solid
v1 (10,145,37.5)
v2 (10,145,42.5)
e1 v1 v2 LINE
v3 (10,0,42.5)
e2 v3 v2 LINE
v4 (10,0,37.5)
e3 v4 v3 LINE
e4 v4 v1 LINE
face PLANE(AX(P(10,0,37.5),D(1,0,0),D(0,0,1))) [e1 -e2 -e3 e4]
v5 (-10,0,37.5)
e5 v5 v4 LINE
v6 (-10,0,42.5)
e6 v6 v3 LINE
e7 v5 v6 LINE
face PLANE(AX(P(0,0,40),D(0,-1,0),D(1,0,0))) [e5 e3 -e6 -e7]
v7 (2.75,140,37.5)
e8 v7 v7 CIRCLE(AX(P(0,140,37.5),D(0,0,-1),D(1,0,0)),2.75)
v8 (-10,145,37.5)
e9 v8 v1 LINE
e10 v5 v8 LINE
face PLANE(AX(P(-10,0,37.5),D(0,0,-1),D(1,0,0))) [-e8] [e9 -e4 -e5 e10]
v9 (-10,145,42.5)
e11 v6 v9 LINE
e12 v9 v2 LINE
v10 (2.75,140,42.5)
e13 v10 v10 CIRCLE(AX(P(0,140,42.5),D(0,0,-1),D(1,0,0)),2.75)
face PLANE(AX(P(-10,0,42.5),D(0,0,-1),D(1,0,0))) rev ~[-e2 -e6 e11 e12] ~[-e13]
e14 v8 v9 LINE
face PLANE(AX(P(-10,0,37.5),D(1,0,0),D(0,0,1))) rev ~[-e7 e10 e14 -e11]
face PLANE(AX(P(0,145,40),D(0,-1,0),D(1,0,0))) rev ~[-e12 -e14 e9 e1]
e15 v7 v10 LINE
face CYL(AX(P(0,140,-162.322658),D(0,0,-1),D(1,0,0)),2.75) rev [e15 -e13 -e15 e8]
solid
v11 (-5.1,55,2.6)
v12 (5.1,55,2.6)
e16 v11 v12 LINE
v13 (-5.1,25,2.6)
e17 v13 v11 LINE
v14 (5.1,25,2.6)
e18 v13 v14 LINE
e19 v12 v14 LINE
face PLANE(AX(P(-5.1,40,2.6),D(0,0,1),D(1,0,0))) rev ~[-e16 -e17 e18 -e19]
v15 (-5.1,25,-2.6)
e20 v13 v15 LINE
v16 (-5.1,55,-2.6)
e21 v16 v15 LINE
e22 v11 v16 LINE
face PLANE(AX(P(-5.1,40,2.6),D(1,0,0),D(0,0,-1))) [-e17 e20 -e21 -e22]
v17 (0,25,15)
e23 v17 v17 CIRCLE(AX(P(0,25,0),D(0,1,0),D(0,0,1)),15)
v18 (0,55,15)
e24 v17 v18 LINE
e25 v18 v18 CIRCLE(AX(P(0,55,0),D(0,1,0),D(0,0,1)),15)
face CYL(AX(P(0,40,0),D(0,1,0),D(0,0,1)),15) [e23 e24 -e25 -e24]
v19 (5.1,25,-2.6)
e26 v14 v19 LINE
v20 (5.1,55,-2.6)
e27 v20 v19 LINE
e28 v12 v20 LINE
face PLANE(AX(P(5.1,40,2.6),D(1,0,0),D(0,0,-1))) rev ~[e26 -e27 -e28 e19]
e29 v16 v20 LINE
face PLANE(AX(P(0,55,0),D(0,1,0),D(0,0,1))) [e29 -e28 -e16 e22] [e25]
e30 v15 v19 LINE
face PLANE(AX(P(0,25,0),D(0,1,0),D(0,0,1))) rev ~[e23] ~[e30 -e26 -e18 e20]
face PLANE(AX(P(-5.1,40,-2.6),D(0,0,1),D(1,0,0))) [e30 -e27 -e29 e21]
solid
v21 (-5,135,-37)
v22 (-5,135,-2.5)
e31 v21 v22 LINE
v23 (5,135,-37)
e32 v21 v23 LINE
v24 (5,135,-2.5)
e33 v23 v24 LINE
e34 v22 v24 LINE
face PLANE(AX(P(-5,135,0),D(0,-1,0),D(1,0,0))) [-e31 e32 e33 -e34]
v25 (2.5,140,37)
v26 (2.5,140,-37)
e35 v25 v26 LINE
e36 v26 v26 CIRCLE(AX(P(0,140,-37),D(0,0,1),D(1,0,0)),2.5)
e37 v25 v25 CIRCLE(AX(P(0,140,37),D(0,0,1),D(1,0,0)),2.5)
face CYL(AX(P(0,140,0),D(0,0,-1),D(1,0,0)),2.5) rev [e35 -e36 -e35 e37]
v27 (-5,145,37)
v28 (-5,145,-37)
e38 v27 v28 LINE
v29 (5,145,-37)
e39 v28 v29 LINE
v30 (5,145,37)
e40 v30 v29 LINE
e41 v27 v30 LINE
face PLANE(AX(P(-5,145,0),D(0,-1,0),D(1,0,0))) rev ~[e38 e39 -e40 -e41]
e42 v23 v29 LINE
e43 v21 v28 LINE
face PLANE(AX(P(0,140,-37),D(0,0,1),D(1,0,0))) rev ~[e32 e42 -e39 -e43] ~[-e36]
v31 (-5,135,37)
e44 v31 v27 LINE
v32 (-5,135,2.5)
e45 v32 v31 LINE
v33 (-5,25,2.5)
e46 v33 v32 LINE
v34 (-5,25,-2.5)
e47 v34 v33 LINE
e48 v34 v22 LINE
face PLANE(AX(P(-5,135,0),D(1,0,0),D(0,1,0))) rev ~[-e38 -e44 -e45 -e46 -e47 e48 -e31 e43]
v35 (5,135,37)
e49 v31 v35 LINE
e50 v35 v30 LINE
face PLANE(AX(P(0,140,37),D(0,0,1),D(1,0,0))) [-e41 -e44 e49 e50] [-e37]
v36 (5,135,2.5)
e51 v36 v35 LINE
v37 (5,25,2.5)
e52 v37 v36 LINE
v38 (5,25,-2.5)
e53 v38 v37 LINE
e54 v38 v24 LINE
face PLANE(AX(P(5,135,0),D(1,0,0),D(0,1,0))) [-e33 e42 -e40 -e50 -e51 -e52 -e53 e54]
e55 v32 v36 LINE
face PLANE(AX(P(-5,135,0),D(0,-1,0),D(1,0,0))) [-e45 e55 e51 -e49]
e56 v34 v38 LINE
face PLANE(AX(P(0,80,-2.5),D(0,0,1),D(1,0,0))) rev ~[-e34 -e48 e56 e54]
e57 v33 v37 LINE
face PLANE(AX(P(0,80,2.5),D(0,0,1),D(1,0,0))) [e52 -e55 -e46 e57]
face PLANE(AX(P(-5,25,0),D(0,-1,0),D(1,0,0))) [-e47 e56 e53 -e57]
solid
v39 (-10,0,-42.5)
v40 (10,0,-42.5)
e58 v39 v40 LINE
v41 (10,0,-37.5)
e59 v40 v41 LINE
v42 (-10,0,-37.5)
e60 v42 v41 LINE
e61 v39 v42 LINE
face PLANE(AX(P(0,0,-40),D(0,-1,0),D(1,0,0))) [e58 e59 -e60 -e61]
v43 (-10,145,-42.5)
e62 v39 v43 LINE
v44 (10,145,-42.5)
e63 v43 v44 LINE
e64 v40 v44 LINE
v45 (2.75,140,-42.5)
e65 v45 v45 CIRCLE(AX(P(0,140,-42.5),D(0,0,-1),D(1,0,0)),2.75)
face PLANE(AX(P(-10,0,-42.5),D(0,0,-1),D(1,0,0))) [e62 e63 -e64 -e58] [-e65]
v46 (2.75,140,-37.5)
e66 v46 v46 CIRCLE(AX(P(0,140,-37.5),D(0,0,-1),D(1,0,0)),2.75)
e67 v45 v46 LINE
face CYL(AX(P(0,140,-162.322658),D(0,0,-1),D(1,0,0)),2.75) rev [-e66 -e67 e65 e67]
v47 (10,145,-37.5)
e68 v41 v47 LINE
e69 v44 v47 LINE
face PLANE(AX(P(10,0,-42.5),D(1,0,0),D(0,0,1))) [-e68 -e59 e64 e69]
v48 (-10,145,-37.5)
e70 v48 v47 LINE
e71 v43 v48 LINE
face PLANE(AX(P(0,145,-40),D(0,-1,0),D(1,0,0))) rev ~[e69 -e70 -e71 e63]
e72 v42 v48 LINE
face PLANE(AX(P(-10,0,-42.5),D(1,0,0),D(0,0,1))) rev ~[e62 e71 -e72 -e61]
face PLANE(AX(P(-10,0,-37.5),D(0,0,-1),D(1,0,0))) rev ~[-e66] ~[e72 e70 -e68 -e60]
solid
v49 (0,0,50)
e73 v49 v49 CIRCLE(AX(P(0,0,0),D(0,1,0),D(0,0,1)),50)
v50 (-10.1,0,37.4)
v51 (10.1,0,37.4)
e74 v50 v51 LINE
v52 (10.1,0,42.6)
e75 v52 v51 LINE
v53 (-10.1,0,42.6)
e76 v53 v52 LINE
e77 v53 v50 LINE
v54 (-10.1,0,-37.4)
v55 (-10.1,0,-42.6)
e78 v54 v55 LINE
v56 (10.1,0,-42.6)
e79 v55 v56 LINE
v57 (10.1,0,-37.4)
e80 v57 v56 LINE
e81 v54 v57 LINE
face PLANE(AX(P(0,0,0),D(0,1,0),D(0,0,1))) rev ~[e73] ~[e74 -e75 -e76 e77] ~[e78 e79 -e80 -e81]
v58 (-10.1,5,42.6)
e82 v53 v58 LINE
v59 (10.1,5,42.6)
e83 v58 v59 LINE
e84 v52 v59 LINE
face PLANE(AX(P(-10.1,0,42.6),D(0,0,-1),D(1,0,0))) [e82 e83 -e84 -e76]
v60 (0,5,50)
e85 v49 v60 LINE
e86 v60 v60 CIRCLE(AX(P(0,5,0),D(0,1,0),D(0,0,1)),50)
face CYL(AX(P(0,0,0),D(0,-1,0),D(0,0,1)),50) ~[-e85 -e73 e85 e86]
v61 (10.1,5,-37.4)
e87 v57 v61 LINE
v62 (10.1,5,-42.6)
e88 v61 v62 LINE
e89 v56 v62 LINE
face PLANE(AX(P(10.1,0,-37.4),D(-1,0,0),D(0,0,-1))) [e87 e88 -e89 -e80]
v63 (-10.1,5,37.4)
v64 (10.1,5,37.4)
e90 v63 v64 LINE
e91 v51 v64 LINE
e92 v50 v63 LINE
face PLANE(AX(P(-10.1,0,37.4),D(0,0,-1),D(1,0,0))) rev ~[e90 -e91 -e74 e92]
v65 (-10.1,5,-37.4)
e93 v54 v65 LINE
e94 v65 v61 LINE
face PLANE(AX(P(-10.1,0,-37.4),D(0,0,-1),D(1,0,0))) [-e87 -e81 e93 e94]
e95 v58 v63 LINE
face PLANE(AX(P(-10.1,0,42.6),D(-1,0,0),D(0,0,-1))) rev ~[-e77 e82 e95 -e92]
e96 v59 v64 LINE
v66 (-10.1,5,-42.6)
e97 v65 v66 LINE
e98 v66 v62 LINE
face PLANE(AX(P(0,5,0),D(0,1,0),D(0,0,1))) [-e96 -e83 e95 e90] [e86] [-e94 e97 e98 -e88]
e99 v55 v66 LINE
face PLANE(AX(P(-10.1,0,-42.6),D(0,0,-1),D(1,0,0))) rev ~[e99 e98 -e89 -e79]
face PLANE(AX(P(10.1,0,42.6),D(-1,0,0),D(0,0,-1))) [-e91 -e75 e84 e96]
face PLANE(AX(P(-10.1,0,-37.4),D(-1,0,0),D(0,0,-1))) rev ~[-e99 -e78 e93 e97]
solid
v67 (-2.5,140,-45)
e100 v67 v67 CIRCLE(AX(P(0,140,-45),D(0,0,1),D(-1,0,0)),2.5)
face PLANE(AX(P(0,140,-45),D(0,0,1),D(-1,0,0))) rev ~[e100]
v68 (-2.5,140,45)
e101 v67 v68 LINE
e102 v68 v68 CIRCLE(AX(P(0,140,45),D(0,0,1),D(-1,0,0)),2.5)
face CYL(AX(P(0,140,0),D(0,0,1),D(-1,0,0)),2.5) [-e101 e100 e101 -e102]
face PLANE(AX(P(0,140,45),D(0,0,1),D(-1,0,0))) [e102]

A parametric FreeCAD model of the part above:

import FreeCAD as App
import Part
import Sketcher
from FreeCAD import Vector

doc = App.newDocument("Part")
params = doc.addObject("Spreadsheet::Sheet", "Params")
for row, (alias, value) in enumerate([
    ("sketch1_diameter", "100 mm"),
    ("sketch1_width", "20.2 mm"),
    ("sketch1_height", "5.2 mm"),
    ("pad1_length", "5 mm"),
    ("sketch2_width", "20 mm"),
    ("sketch2_height", "5 mm"),
    ("pad2_length", "145 mm"),
    ("sketch3_width", "20 mm"),
    ("sketch3_height", "5 mm"),
    ("pad3_length", "145 mm"),
    ("sketch4_diameter", "5.5 mm"),
    ("pad4_length", "162.322658 mm"),
    ("pad4_length2", "162.322658 mm"),
    ("sketch5_diameter", "5 mm"),
    ("pad5_length", "90 mm"),
    ("sketch6_diameter", "5 mm"),
    ("sketch6_width", "10 mm"),
    ("pad6_length", "74 mm"),
    ("sketch7_width", "10 mm"),
    ("sketch7_height", "110 mm"),
    ("pad7_length", "5 mm"),
    ("sketch8_diameter", "30 mm"),
    ("sketch8_width", "10.2 mm"),
    ("sketch8_height", "5.2 mm"),
    ("pad8_length", "30 mm"),
], start=1):
    params.set(f"A{row}", alias)
    params.set(f"B{row}", "=" + value)
    params.setAlias(f"B{row}", alias)

body = doc.addObject("PartDesign::Body", "Body")

# Sketch on XZ plane
sketch1 = body.newObject("Sketcher::SketchObject", "Sketch")
sketch1.AttachmentSupport = (doc.getObject("XZ_Plane"), [""])
sketch1.MapMode = "FlatFace"
sketch1.addGeometry(Part.Circle(Vector(0, 0, 0), Vector(0, 0, 1), 50), False)
sketch1.addGeometry(Part.LineSegment(Vector(10, -37, 0), Vector(-10, -37, 0)), False)
sketch1.addGeometry(Part.LineSegment(Vector(-10, -37, 0), Vector(-10, -43, 0)), False)
sketch1.addGeometry(Part.LineSegment(Vector(-10, -43, 0), Vector(10, -43, 0)), False)
sketch1.addGeometry(Part.LineSegment(Vector(10, -43, 0), Vector(10, -37, 0)), False)
sketch1.addGeometry(Part.LineSegment(Vector(10, 43, 0), Vector(-10, 43, 0)), False)
sketch1.addGeometry(Part.LineSegment(Vector(-10, 43, 0), Vector(-10, 37, 0)), False)
sketch1.addGeometry(Part.LineSegment(Vector(-10, 37, 0), Vector(10, 37, 0)), False)
sketch1.addGeometry(Part.LineSegment(Vector(10, 37, 0), Vector(10, 43, 0)), False)
sketch1.addConstraint(Sketcher.Constraint("Coincident", 1, 2, 2, 1))
sketch1.addConstraint(Sketcher.Constraint("Coincident", 2, 2, 3, 1))
sketch1.addConstraint(Sketcher.Constraint("Coincident", 3, 2, 4, 1))
sketch1.addConstraint(Sketcher.Constraint("Coincident", 4, 2, 1, 1))
sketch1.addConstraint(Sketcher.Constraint("Coincident", 5, 2, 6, 1))
sketch1.addConstraint(Sketcher.Constraint("Coincident", 6, 2, 7, 1))
sketch1.addConstraint(Sketcher.Constraint("Coincident", 7, 2, 8, 1))
sketch1.addConstraint(Sketcher.Constraint("Coincident", 8, 2, 5, 1))
sketch1.addConstraint(Sketcher.Constraint("Horizontal", 1))
sketch1.addConstraint(Sketcher.Constraint("Vertical", 2))
sketch1.addConstraint(Sketcher.Constraint("Horizontal", 3))
sketch1.addConstraint(Sketcher.Constraint("Vertical", 4))
sketch1.addConstraint(Sketcher.Constraint("Horizontal", 5))
sketch1.addConstraint(Sketcher.Constraint("Vertical", 6))
sketch1.addConstraint(Sketcher.Constraint("Horizontal", 7))
sketch1.addConstraint(Sketcher.Constraint("Vertical", 8))
sketch1.addConstraint(Sketcher.Constraint("Coincident", 0, 3, -1, 1))
sketch1.addConstraint(Sketcher.Constraint("Symmetric", 3, 2, 5, 2, -1, 1))
sketch1.addConstraint(Sketcher.Constraint("Symmetric", 1, 2, 7, 2, -1, 1))
sketch1.addConstraint(Sketcher.Constraint("Vertical", 2, 2, 5, 2))
sketch1.addConstraint(Sketcher.Constraint("Diameter", 0, 100.0))
sketch1.addConstraint(Sketcher.Constraint("DistanceX", 1, 2, 1, 1, 20.2))
sketch1.addConstraint(Sketcher.Constraint("DistanceY", 2, 2, 2, 1, 5.2))
sketch1.addConstraint(Sketcher.Constraint("DistanceY", 1, 2, 5, 2, 80.0))
sketch1.setExpression("Constraints[20]", "Params.sketch1_diameter")
sketch1.setExpression("Constraints[21]", "Params.sketch1_width")
sketch1.setExpression("Constraints[22]", "Params.sketch1_height")
pad1 = body.newObject("PartDesign::Pad", "Pad")
pad1.Profile = sketch1
pad1.setExpression("Length", "Params.pad1_length")
pad1.Reversed = True
body2 = doc.addObject("PartDesign::Body", "Body001")

# Sketch on XZ plane
sketch2 = body2.newObject("Sketcher::SketchObject", "Sketch001")
sketch2.AttachmentSupport = (doc.getObject("XZ_Plane001"), [""])
sketch2.MapMode = "FlatFace"
sketch2.addGeometry(Part.LineSegment(Vector(-10, 42, 0), Vector(-10, 38, 0)), False)
sketch2.addGeometry(Part.LineSegment(Vector(-10, 38, 0), Vector(10, 38, 0)), False)
sketch2.addGeometry(Part.LineSegment(Vector(10, 38, 0), Vector(10, 42, 0)), False)
sketch2.addGeometry(Part.LineSegment(Vector(10, 42, 0), Vector(-10, 42, 0)), False)
sketch2.addConstraint(Sketcher.Constraint("Coincident", 0, 2, 1, 1))
sketch2.addConstraint(Sketcher.Constraint("Coincident", 1, 2, 2, 1))
sketch2.addConstraint(Sketcher.Constraint("Coincident", 2, 2, 3, 1))
sketch2.addConstraint(Sketcher.Constraint("Coincident", 3, 2, 0, 1))
sketch2.addConstraint(Sketcher.Constraint("Vertical", 0))
sketch2.addConstraint(Sketcher.Constraint("Horizontal", 1))
sketch2.addConstraint(Sketcher.Constraint("Vertical", 2))
sketch2.addConstraint(Sketcher.Constraint("Horizontal", 3))
sketch2.addConstraint(Sketcher.Constraint("DistanceX", 1, 1, 1, 2, 20.0))
sketch2.addConstraint(Sketcher.Constraint("DistanceY", 0, 2, 0, 1, 5.0))
sketch2.addConstraint(Sketcher.Constraint("DistanceX", 0, 2, -1, 1, 10.0))
sketch2.addConstraint(Sketcher.Constraint("DistanceY", -1, 1, 0, 2, 37.5))
sketch2.setExpression("Constraints[8]", "Params.sketch2_width")
sketch2.setExpression("Constraints[9]", "Params.sketch2_height")
pad2 = body2.newObject("PartDesign::Pad", "Pad001")
pad2.Profile = sketch2
pad2.setExpression("Length", "Params.pad2_length")
pad2.Reversed = True
body3 = doc.addObject("PartDesign::Body", "Body002")

# Sketch on XZ plane
sketch3 = body3.newObject("Sketcher::SketchObject", "Sketch002")
sketch3.AttachmentSupport = (doc.getObject("XZ_Plane002"), [""])
sketch3.MapMode = "FlatFace"
sketch3.addGeometry(Part.LineSegment(Vector(-10, -38, 0), Vector(-10, -42, 0)), False)
sketch3.addGeometry(Part.LineSegment(Vector(-10, -42, 0), Vector(10, -42, 0)), False)
sketch3.addGeometry(Part.LineSegment(Vector(10, -42, 0), Vector(10, -38, 0)), False)
sketch3.addGeometry(Part.LineSegment(Vector(10, -38, 0), Vector(-10, -38, 0)), False)
sketch3.addConstraint(Sketcher.Constraint("Coincident", 0, 2, 1, 1))
sketch3.addConstraint(Sketcher.Constraint("Coincident", 1, 2, 2, 1))
sketch3.addConstraint(Sketcher.Constraint("Coincident", 2, 2, 3, 1))
sketch3.addConstraint(Sketcher.Constraint("Coincident", 3, 2, 0, 1))
sketch3.addConstraint(Sketcher.Constraint("Vertical", 0))
sketch3.addConstraint(Sketcher.Constraint("Horizontal", 1))
sketch3.addConstraint(Sketcher.Constraint("Vertical", 2))
sketch3.addConstraint(Sketcher.Constraint("Horizontal", 3))
sketch3.addConstraint(Sketcher.Constraint("DistanceX", 1, 1, 1, 2, 20.0))
sketch3.addConstraint(Sketcher.Constraint("DistanceY", 0, 2, 0, 1, 5.0))
sketch3.addConstraint(Sketcher.Constraint("DistanceX", 0, 2, -1, 1, 10.0))
sketch3.addConstraint(Sketcher.Constraint("DistanceY", 0, 2, -1, 1, 42.5))
sketch3.setExpression("Constraints[8]", "Params.sketch3_width")
sketch3.setExpression("Constraints[9]", "Params.sketch3_height")
pad3 = body3.newObject("PartDesign::Pad", "Pad002")
pad3.Profile = sketch3
pad3.setExpression("Length", "Params.pad3_length")
pad3.Reversed = True
body4 = doc.addObject("PartDesign::Body", "Body003")

# Sketch on XY plane
sketch4 = body4.newObject("Sketcher::SketchObject", "Sketch003")
sketch4.AttachmentSupport = (doc.getObject("XY_Plane003"), [""])
sketch4.MapMode = "FlatFace"
sketch4.addGeometry(Part.Circle(Vector(0, 140, 0), Vector(0, 0, 1), 2.8), False)
sketch4.addConstraint(Sketcher.Constraint("PointOnObject", 0, 3, -2))
sketch4.addConstraint(Sketcher.Constraint("Diameter", 0, 5.5))
sketch4.addConstraint(Sketcher.Constraint("DistanceY", -1, 1, 0, 3, 140.0))
sketch4.setExpression("Constraints[1]", "Params.sketch4_diameter")
pad4 = body4.newObject("PartDesign::Pad", "Pad003")
pad4.Profile = sketch4
pad4.Type = "TwoLengths"
pad4.setExpression("Length", "Params.pad4_length")
pad4.setExpression("Length2", "Params.pad4_length2")
doc.recompute()

body5 = doc.addObject("PartDesign::Body", "Body004")
body5.BaseFeature = body4
boolean = body2.newObject("PartDesign::Boolean", "Boolean")
boolean.Type = "Cut"
boolean.addObjects([body5])
doc.recompute()

boolean2 = body3.newObject("PartDesign::Boolean", "Boolean001")
boolean2.Type = "Cut"
boolean2.addObjects([body4])
body6 = doc.addObject("PartDesign::Body", "Body005")

# Sketch on XY plane
sketch5 = body6.newObject("Sketcher::SketchObject", "Sketch004")
sketch5.AttachmentSupport = (doc.getObject("XY_Plane005"), [""])
sketch5.MapMode = "FlatFace"
sketch5.addGeometry(Part.Circle(Vector(0, 140, 0), Vector(0, 0, 1), 2.5), False)
sketch5.addConstraint(Sketcher.Constraint("PointOnObject", 0, 3, -2))
sketch5.addConstraint(Sketcher.Constraint("Diameter", 0, 5.0))
sketch5.addConstraint(Sketcher.Constraint("DistanceY", -1, 1, 0, 3, 140.0))
sketch5.setExpression("Constraints[1]", "Params.sketch5_diameter")
pad5 = body6.newObject("PartDesign::Pad", "Pad004")
pad5.Profile = sketch5
pad5.setExpression("Length", "Params.pad5_length")
pad5.Midplane = True
body7 = doc.addObject("PartDesign::Body", "Body006")

# Sketch on XY plane
sketch6 = body7.newObject("Sketcher::SketchObject", "Sketch005")
sketch6.AttachmentSupport = (doc.getObject("XY_Plane006"), [""])
sketch6.MapMode = "FlatFace"
sketch6.addGeometry(Part.LineSegment(Vector(-5, 145, 0), Vector(-5, 135, 0)), False)
sketch6.addGeometry(Part.LineSegment(Vector(-5, 135, 0), Vector(5, 135, 0)), False)
sketch6.addGeometry(Part.LineSegment(Vector(5, 135, 0), Vector(5, 145, 0)), False)
sketch6.addGeometry(Part.LineSegment(Vector(5, 145, 0), Vector(-5, 145, 0)), False)
sketch6.addGeometry(Part.Circle(Vector(0, 140, 0), Vector(0, 0, 1), 2.5), False)
sketch6.addConstraint(Sketcher.Constraint("Coincident", 0, 2, 1, 1))
sketch6.addConstraint(Sketcher.Constraint("Coincident", 1, 2, 2, 1))
sketch6.addConstraint(Sketcher.Constraint("Coincident", 2, 2, 3, 1))
sketch6.addConstraint(Sketcher.Constraint("Coincident", 3, 2, 0, 1))
sketch6.addConstraint(Sketcher.Constraint("Vertical", 0))
sketch6.addConstraint(Sketcher.Constraint("Horizontal", 1))
sketch6.addConstraint(Sketcher.Constraint("Vertical", 2))
sketch6.addConstraint(Sketcher.Constraint("Horizontal", 3))
sketch6.addConstraint(Sketcher.Constraint("PointOnObject", 4, 3, -2))
sketch6.addConstraint(Sketcher.Constraint("Equal", 3, 0))
sketch6.addConstraint(Sketcher.Constraint("Diameter", 4, 5.0))
sketch6.addConstraint(Sketcher.Constraint("DistanceX", 1, 1, 1, 2, 10.0))
sketch6.addConstraint(Sketcher.Constraint("DistanceY", -1, 1, 4, 3, 140.0))
sketch6.addConstraint(Sketcher.Constraint("DistanceX", 0, 2, -1, 1, 5.0))
sketch6.addConstraint(Sketcher.Constraint("DistanceY", -1, 1, 0, 2, 135.0))
sketch6.setExpression("Constraints[10]", "Params.sketch6_diameter")
sketch6.setExpression("Constraints[11]", "Params.sketch6_width")
pad6 = body7.newObject("PartDesign::Pad", "Pad005")
pad6.Profile = sketch6
pad6.setExpression("Length", "Params.pad6_length")
pad6.Midplane = True

# Sketch on XY plane
sketch7 = body7.newObject("Sketcher::SketchObject", "Sketch006")
sketch7.AttachmentSupport = (doc.getObject("XY_Plane006"), [""])
sketch7.MapMode = "FlatFace"
sketch7.addGeometry(Part.LineSegment(Vector(-5, 135, 0), Vector(-5, 25, 0)), False)
sketch7.addGeometry(Part.LineSegment(Vector(-5, 25, 0), Vector(5, 25, 0)), False)
sketch7.addGeometry(Part.LineSegment(Vector(5, 25, 0), Vector(5, 135, 0)), False)
sketch7.addGeometry(Part.LineSegment(Vector(5, 135, 0), Vector(-5, 135, 0)), False)
sketch7.addConstraint(Sketcher.Constraint("Coincident", 0, 2, 1, 1))
sketch7.addConstraint(Sketcher.Constraint("Coincident", 1, 2, 2, 1))
sketch7.addConstraint(Sketcher.Constraint("Coincident", 2, 2, 3, 1))
sketch7.addConstraint(Sketcher.Constraint("Coincident", 3, 2, 0, 1))
sketch7.addConstraint(Sketcher.Constraint("Vertical", 0))
sketch7.addConstraint(Sketcher.Constraint("Horizontal", 1))
sketch7.addConstraint(Sketcher.Constraint("Vertical", 2))
sketch7.addConstraint(Sketcher.Constraint("Horizontal", 3))
sketch7.addConstraint(Sketcher.Constraint("DistanceX", 1, 1, 1, 2, 10.0))
sketch7.addConstraint(Sketcher.Constraint("DistanceY", 0, 2, 0, 1, 110.0))
sketch7.addConstraint(Sketcher.Constraint("DistanceX", 0, 2, -1, 1, 5.0))
sketch7.addConstraint(Sketcher.Constraint("DistanceY", -1, 1, 0, 2, 25.0))
sketch7.setExpression("Constraints[8]", "Params.sketch7_width")
sketch7.setExpression("Constraints[9]", "Params.sketch7_height")
pad7 = body7.newObject("PartDesign::Pad", "Pad006")
pad7.Profile = sketch7
pad7.setExpression("Length", "Params.pad7_length")
pad7.Midplane = True
body8 = doc.addObject("PartDesign::Body", "Body007")

# Sketch on XZ plane
sketch8 = body8.newObject("Sketcher::SketchObject", "Sketch007")
sketch8.AttachmentSupport = (doc.getObject("XZ_Plane007"), [""])
sketch8.MapMode = "FlatFace"
sketch8.AttachmentOffset = App.Placement(Vector(0, 0, -40), App.Rotation())
sketch8.addGeometry(Part.Circle(Vector(0, 0, 0), Vector(0, 0, 1), 15), False)
sketch8.addGeometry(Part.LineSegment(Vector(5, 3, 0), Vector(-5, 3, 0)), False)
sketch8.addGeometry(Part.LineSegment(Vector(-5, 3, 0), Vector(-5, -3, 0)), False)
sketch8.addGeometry(Part.LineSegment(Vector(-5, -3, 0), Vector(5, -3, 0)), False)
sketch8.addGeometry(Part.LineSegment(Vector(5, -3, 0), Vector(5, 3, 0)), False)
sketch8.addConstraint(Sketcher.Constraint("Coincident", 1, 2, 2, 1))
sketch8.addConstraint(Sketcher.Constraint("Coincident", 2, 2, 3, 1))
sketch8.addConstraint(Sketcher.Constraint("Coincident", 3, 2, 4, 1))
sketch8.addConstraint(Sketcher.Constraint("Coincident", 4, 2, 1, 1))
sketch8.addConstraint(Sketcher.Constraint("Horizontal", 1))
sketch8.addConstraint(Sketcher.Constraint("Vertical", 2))
sketch8.addConstraint(Sketcher.Constraint("Horizontal", 3))
sketch8.addConstraint(Sketcher.Constraint("Vertical", 4))
sketch8.addConstraint(Sketcher.Constraint("Coincident", 0, 3, -1, 1))
sketch8.addConstraint(Sketcher.Constraint("Symmetric", 1, 2, 3, 2, -1, 1))
sketch8.addConstraint(Sketcher.Constraint("Diameter", 0, 30.0))
sketch8.addConstraint(Sketcher.Constraint("DistanceX", 1, 2, 1, 1, 10.2))
sketch8.addConstraint(Sketcher.Constraint("DistanceY", 2, 2, 2, 1, 5.2))
sketch8.setExpression("Constraints[10]", "Params.sketch8_diameter")
sketch8.setExpression("Constraints[11]", "Params.sketch8_width")
sketch8.setExpression("Constraints[12]", "Params.sketch8_height")
pad8 = body8.newObject("PartDesign::Pad", "Pad007")
pad8.Profile = sketch8
pad8.setExpression("Length", "Params.pad8_length")
pad8.Midplane = True

doc.recompute()
